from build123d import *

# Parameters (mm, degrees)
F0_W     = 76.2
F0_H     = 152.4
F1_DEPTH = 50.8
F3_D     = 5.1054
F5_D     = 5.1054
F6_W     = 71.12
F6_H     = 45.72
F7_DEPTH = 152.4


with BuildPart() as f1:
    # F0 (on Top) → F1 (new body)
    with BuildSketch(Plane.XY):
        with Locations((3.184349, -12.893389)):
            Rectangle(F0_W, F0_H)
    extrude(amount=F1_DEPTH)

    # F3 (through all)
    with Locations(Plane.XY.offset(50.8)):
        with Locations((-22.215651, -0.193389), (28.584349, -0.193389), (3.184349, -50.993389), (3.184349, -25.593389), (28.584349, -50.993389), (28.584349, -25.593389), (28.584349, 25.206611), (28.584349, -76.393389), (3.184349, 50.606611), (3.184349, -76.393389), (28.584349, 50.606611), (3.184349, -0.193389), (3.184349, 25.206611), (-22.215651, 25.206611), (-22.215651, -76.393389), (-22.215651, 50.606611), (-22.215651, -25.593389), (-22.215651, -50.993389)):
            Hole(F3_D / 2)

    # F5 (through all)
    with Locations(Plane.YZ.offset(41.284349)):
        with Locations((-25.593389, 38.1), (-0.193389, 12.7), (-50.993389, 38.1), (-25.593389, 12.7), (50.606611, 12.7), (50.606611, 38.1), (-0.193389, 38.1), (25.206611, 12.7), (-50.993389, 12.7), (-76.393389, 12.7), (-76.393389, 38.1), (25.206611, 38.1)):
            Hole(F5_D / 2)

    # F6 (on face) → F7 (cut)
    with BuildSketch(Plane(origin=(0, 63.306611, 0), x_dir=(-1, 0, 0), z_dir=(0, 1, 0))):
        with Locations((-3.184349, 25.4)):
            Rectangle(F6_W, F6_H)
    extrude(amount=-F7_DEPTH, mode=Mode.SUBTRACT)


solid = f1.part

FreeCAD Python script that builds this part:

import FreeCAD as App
import Part
import Sketcher

V = App.Vector
Q = App.Units.Quantity

doc = App.newDocument("Part")
body = doc.addObject("PartDesign::Body", "Body")

# Sketch on XY plane
sketch1 = body.newObject("Sketcher::SketchObject", "Sketch")
sketch1.AttachmentSupport = (doc.getObject("XY_Plane"), [""])
sketch1.MapMode = "FlatFace"
sketch1.addGeometry(Part.LineSegment(V(-35, 63, 0), V(-35, -89, 0)), False)
sketch1.addGeometry(Part.LineSegment(V(-35, -89, 0), V(41, -89, 0)), False)
sketch1.addGeometry(Part.LineSegment(V(41, -89, 0), V(41, 63, 0)), False)
sketch1.addGeometry(Part.LineSegment(V(41, 63, 0), V(-35, 63, 0)), False)
sketch1.addConstraint(Sketcher.Constraint("Coincident", 0, 2, 1, 1))
sketch1.addConstraint(Sketcher.Constraint("Coincident", 1, 2, 2, 1))
sketch1.addConstraint(Sketcher.Constraint("Coincident", 2, 2, 3, 1))
sketch1.addConstraint(Sketcher.Constraint("Coincident", 3, 2, 0, 1))
sketch1.addConstraint(Sketcher.Constraint("Vertical", 0))
sketch1.addConstraint(Sketcher.Constraint("Horizontal", 1))
sketch1.addConstraint(Sketcher.Constraint("Vertical", 2))
sketch1.addConstraint(Sketcher.Constraint("Horizontal", 3))
sketch1.addConstraint(Sketcher.Constraint("DistanceX", 1, 1, 1, 2, Q("3 in")))
sketch1.addConstraint(Sketcher.Constraint("DistanceY", 0, 2, 0, 1, Q("6 in")))
sketch1.addConstraint(Sketcher.Constraint("DistanceX", 0, 2, -1, 1, Q("34.915651 mm")))
sketch1.addConstraint(Sketcher.Constraint("DistanceY", 0, 2, -1, 1, Q("89.093389 mm")))
pad1 = body.newObject("PartDesign::Pad", "Pad")
pad1.Profile = sketch1
pad1.Length = Q("2 in")

# Sketch on XY plane
sketch2 = body.newObject("Sketcher::SketchObject", "Sketch001")
sketch2.AttachmentSupport = (doc.getObject("XY_Plane"), [""])
sketch2.MapMode = "FlatFace"
sketch2.AttachmentOffset = App.Placement(V(0, 0, 2 * 25.4), App.Rotation())
sketch2.addGeometry(Part.Circle(V(-22.2, -0.2, 0), V(0, 0, 1), 2.6), False)
sketch2.addGeometry(Part.Circle(V(28.6, -0.2, 0), V(0, 0, 1), 2.6), False)
sketch2.addGeometry(Part.Circle(V(3.2, -51, 0), V(0, 0, 1), 2.6), False)
sketch2.addGeometry(Part.Circle(V(3.2, -25.6, 0), V(0, 0, 1), 2.6), False)
sketch2.addGeometry(Part.Circle(V(28.6, -51, 0), V(0, 0, 1), 2.6), False)
sketch2.addGeometry(Part.Circle(V(28.6, -25.6, 0), V(0, 0, 1), 2.6), False)
sketch2.addGeometry(Part.Circle(V(28.6, 25.2, 0), V(0, 0, 1), 2.6), False)
sketch2.addGeometry(Part.Circle(V(28.6, -76.4, 0), V(0, 0, 1), 2.6), False)
sketch2.addGeometry(Part.Circle(V(3.2, 50.6, 0), V(0, 0, 1), 2.6), False)
sketch2.addGeometry(Part.Circle(V(3.2, -76.4, 0), V(0, 0, 1), 2.6), False)
sketch2.addGeometry(Part.Circle(V(28.6, 50.6, 0), V(0, 0, 1), 2.6), False)
sketch2.addGeometry(Part.Circle(V(3.2, -0.2, 0), V(0, 0, 1), 2.6), False)
sketch2.addGeometry(Part.Circle(V(3.2, 25.2, 0), V(0, 0, 1), 2.6), False)
sketch2.addGeometry(Part.Circle(V(-22.2, 25.2, 0), V(0, 0, 1), 2.6), False)
sketch2.addGeometry(Part.Circle(V(-22.2, -76.4, 0), V(0, 0, 1), 2.6), False)
sketch2.addGeometry(Part.Circle(V(-22.2, 50.6, 0), V(0, 0, 1), 2.6), False)
sketch2.addGeometry(Part.Circle(V(-22.2, -25.6, 0), V(0, 0, 1), 2.6), False)
sketch2.addGeometry(Part.Circle(V(-22.2, -51, 0), V(0, 0, 1), 2.6), False)
sketch2.addConstraint(Sketcher.Constraint("Equal", 0, 1))
sketch2.addConstraint(Sketcher.Constraint("Equal", 1, 2))
sketch2.addConstraint(Sketcher.Constraint("Equal", 2, 3))
sketch2.addConstraint(Sketcher.Constraint("Equal", 3, 4))
sketch2.addConstraint(Sketcher.Constraint("Equal", 4, 5))
sketch2.addConstraint(Sketcher.Constraint("Equal", 5, 6))
sketch2.addConstraint(Sketcher.Constraint("Equal", 6, 7))
sketch2.addConstraint(Sketcher.Constraint("Equal", 7, 8))
sketch2.addConstraint(Sketcher.Constraint("Equal", 8, 9))
sketch2.addConstraint(Sketcher.Constraint("Equal", 9, 10))
sketch2.addConstraint(Sketcher.Constraint("Equal", 10, 11))
sketch2.addConstraint(Sketcher.Constraint("Equal", 11, 12))
sketch2.addConstraint(Sketcher.Constraint("Equal", 12, 13))
sketch2.addConstraint(Sketcher.Constraint("Equal", 13, 14))
sketch2.addConstraint(Sketcher.Constraint("Equal", 14, 15))
sketch2.addConstraint(Sketcher.Constraint("Equal", 15, 16))
sketch2.addConstraint(Sketcher.Constraint("Equal", 16, 17))
sketch2.addConstraint(Sketcher.Constraint("Horizontal", 0, 3, 1, 3))
sketch2.addConstraint(Sketcher.Constraint("Horizontal", 2, 3, 4, 3))
sketch2.addConstraint(Sketcher.Constraint("Horizontal", 3, 3, 5, 3))
sketch2.addConstraint(Sketcher.Constraint("Horizontal", 7, 3, 9, 3))
sketch2.addConstraint(Sketcher.Constraint("Horizontal", 8, 3, 10, 3))
sketch2.addConstraint(Sketcher.Constraint("Horizontal", 1, 3, 11, 3))
sketch2.addConstraint(Sketcher.Constraint("Horizontal", 6, 3, 12, 3))
sketch2.addConstraint(Sketcher.Constraint("Horizontal", 12, 3, 13, 3))
sketch2.addConstraint(Sketcher.Constraint("Horizontal", 9, 3, 14, 3))
sketch2.addConstraint(Sketcher.Constraint("Horizontal", 10, 3, 15, 3))
sketch2.addConstraint(Sketcher.Constraint("Horizontal", 5, 3, 16, 3))
sketch2.addConstraint(Sketcher.Constraint("Horizontal", 4, 3, 17, 3))
sketch2.addConstraint(Sketcher.Constraint("Vertical", 2, 3, 3, 3))
sketch2.addConstraint(Sketcher.Constraint("Vertical", 1, 3, 4, 3))
sketch2.addConstraint(Sketcher.Constraint("Vertical", 4, 3, 5, 3))
sketch2.addConstraint(Sketcher.Constraint("Vertical", 5, 3, 6, 3))
sketch2.addConstraint(Sketcher.Constraint("Vertical", 6, 3, 7, 3))
sketch2.addConstraint(Sketcher.Constraint("Vertical", 3, 3, 8, 3))
sketch2.addConstraint(Sketcher.Constraint("Vertical", 8, 3, 9, 3))
sketch2.addConstraint(Sketcher.Constraint("Vertical", 7, 3, 10, 3))
sketch2.addConstraint(Sketcher.Constraint("Vertical", 9, 3, 11, 3))
sketch2.addConstraint(Sketcher.Constraint("Vertical", 11, 3, 12, 3))
sketch2.addConstraint(Sketcher.Constraint("Vertical", 0, 3, 13, 3))
sketch2.addConstraint(Sketcher.Constraint("Vertical", 13, 3, 14, 3))
sketch2.addConstraint(Sketcher.Constraint("Vertical", 14, 3, 15, 3))
sketch2.addConstraint(Sketcher.Constraint("Vertical", 15, 3, 16, 3))
sketch2.addConstraint(Sketcher.Constraint("Vertical", 16, 3, 17, 3))
sketch2.addConstraint(Sketcher.Constraint("Diameter", 0, Q("0.201 in")))
sketch2.addConstraint(Sketcher.Constraint("DistanceX", 0, 3, 1, 3, Q("2 in")))
sketch2.addConstraint(Sketcher.Constraint("DistanceX", 0, 3, 2, 3, Q("1 in")))
sketch2.addConstraint(Sketcher.Constraint("DistanceY", 2, 3, 0, 3, Q("2 in")))
sketch2.addConstraint(Sketcher.Constraint("DistanceY", 2, 3, 3, 3, Q("1 in")))
sketch2.addConstraint(Sketcher.Constraint("DistanceY", 1, 3, 6, 3, Q("1 in")))
sketch2.addConstraint(Sketcher.Constraint("DistanceY", 7, 3, 4, 3, Q("1 in")))
sketch2.addConstraint(Sketcher.Constraint("DistanceY", 6, 3, 8, 3, Q("1 in")))
sketch2.addConstraint(Sketcher.Constraint("DistanceX", 0, 3, -1, 1, Q("22.215651 mm")))
sketch2.addConstraint(Sketcher.Constraint("DistanceY", 0, 3, -1, 1, Q("0.193389 mm")))
doc.recompute()
hole = body.newObject("PartDesign::Hole", "Hole")
hole.Profile = sketch2
hole.ThreadType = "None"
hole.Diameter = Q("0.201 in")
hole.DepthType = "ThroughAll"

# Sketch on YZ plane
sketch3 = body.newObject("Sketcher::SketchObject", "Sketch002")
sketch3.AttachmentSupport = (doc.getObject("YZ_Plane"), [""])
sketch3.MapMode = "FlatFace"
sketch3.AttachmentOffset = App.Placement(V(0, 0, 41.284349), App.Rotation())
sketch3.addGeometry(Part.Circle(V(-25.6, 38.1, 0), V(0, 0, 1), 2.6), False)
sketch3.addGeometry(Part.Circle(V(-0.2, 12.7, 0), V(0, 0, 1), 2.6), False)
sketch3.addGeometry(Part.Circle(V(-51, 38.1, 0), V(0, 0, 1), 2.6), False)
sketch3.addGeometry(Part.Circle(V(-25.6, 12.7, 0), V(0, 0, 1), 2.6), False)
sketch3.addGeometry(Part.Circle(V(50.6, 12.7, 0), V(0, 0, 1), 2.6), False)
sketch3.addGeometry(Part.Circle(V(50.6, 38.1, 0), V(0, 0, 1), 2.6), False)
sketch3.addGeometry(Part.Circle(V(-0.2, 38.1, 0), V(0, 0, 1), 2.6), False)
sketch3.addGeometry(Part.Circle(V(25.2, 12.7, 0), V(0, 0, 1), 2.6), False)
sketch3.addGeometry(Part.Circle(V(-51, 12.7, 0), V(0, 0, 1), 2.6), False)
sketch3.addGeometry(Part.Circle(V(-76.4, 12.7, 0), V(0, 0, 1), 2.6), False)
sketch3.addGeometry(Part.Circle(V(-76.4, 38.1, 0), V(0, 0, 1), 2.6), False)
sketch3.addGeometry(Part.Circle(V(25.2, 38.1, 0), V(0, 0, 1), 2.6), False)
sketch3.addConstraint(Sketcher.Constraint("Equal", 0, 1))
sketch3.addConstraint(Sketcher.Constraint("Equal", 1, 2))
sketch3.addConstraint(Sketcher.Constraint("Equal", 2, 3))
sketch3.addConstraint(Sketcher.Constraint("Equal", 3, 4))
sketch3.addConstraint(Sketcher.Constraint("Equal", 4, 5))
sketch3.addConstraint(Sketcher.Constraint("Equal", 5, 6))
sketch3.addConstraint(Sketcher.Constraint("Equal", 6, 7))
sketch3.addConstraint(Sketcher.Constraint("Equal", 7, 8))
sketch3.addConstraint(Sketcher.Constraint("Equal", 8, 9))
sketch3.addConstraint(Sketcher.Constraint("Equal", 9, 10))
sketch3.addConstraint(Sketcher.Constraint("Equal", 10, 11))
sketch3.addConstraint(Sketcher.Constraint("Horizontal", 0, 3, 2, 3))
sketch3.addConstraint(Sketcher.Constraint("Horizontal", 1, 3, 3, 3))
sketch3.addConstraint(Sketcher.Constraint("Horizontal", 3, 3, 4, 3))
sketch3.addConstraint(Sketcher.Constraint("Horizontal", 2, 3, 5, 3))
sketch3.addConstraint(Sketcher.Constraint("Horizontal", 5, 3, 6, 3))
sketch3.addConstraint(Sketcher.Constraint("Horizontal", 4, 3, 7, 3))
sketch3.addConstraint(Sketcher.Constraint("Horizontal", 7, 3, 8, 3))
sketch3.addConstraint(Sketcher.Constraint("Horizontal", 8, 3, 9, 3))
sketch3.addConstraint(Sketcher.Constraint("Horizontal", 6, 3, 10, 3))
sketch3.addConstraint(Sketcher.Constraint("Horizontal", 10, 3, 11, 3))
sketch3.addConstraint(Sketcher.Constraint("Vertical", 0, 3, 3, 3))
sketch3.addConstraint(Sketcher.Constraint("Vertical", 4, 3, 5, 3))
sketch3.addConstraint(Sketcher.Constraint("Vertical", 1, 3, 6, 3))
sketch3.addConstraint(Sketcher.Constraint("Vertical", 2, 3, 8, 3))
sketch3.addConstraint(Sketcher.Constraint("Vertical", 9, 3, 10, 3))
sketch3.addConstraint(Sketcher.Constraint("Vertical", 7, 3, 11, 3))
sketch3.addConstraint(Sketcher.Constraint("Diameter", 0, Q("0.201 in")))
sketch3.addConstraint(Sketcher.Constraint("DistanceX", 0, 3, 1, 3, Q("1 in")))
sketch3.addConstraint(Sketcher.Constraint("DistanceY", 1, 3, 0, 3, Q("1 in")))
sketch3.addConstraint(Sketcher.Constraint("DistanceX", 2, 3, 0, 3, Q("1 in")))
sketch3.addConstraint(Sketcher.Constraint("DistanceX", 1, 3, 4, 3, Q("2 in")))
sketch3.addConstraint(Sketcher.Constraint("DistanceX", 1, 3, 7, 3, Q("1 in")))
sketch3.addConstraint(Sketcher.Constraint("DistanceX", 9, 3, 8, 3, Q("1 in")))
sketch3.addConstraint(Sketcher.Constraint("DistanceY", -1, 1, 0, 3, Q("1.5 in")))
sketch3.addConstraint(Sketcher.Constraint("DistanceX", 0, 3, -1, 1, Q("25.593389 mm")))
doc.recompute()
hole2 = body.newObject("PartDesign::Hole", "Hole001")
hole2.Profile = sketch3
hole2.ThreadType = "None"
hole2.Diameter = Q("0.201 in")
hole2.DepthType = "ThroughAll"

# Sketch on XZ plane
sketch4 = body.newObject("Sketcher::SketchObject", "Sketch003")
sketch4.AttachmentSupport = (doc.getObject("XZ_Plane"), [""])
sketch4.MapMode = "FlatFace"
sketch4.AttachmentOffset = App.Placement(V(0, 0, -63.306611), App.Rotation())
sketch4.addGeometry(Part.LineSegment(V(39, 48, 0), V(39, 3, 0)), False)
sketch4.addGeometry(Part.LineSegment(V(39, 3, 0), V(-32, 3, 0)), False)
sketch4.addGeometry(Part.LineSegment(V(-32, 3, 0), V(-32, 48, 0)), False)
sketch4.addGeometry(Part.LineSegment(V(-32, 48, 0), V(39, 48, 0)), False)
sketch4.addConstraint(Sketcher.Constraint("Coincident", 0, 2, 1, 1))
sketch4.addConstraint(Sketcher.Constraint("Coincident", 1, 2, 2, 1))
sketch4.addConstraint(Sketcher.Constraint("Coincident", 2, 2, 3, 1))
sketch4.addConstraint(Sketcher.Constraint("Coincident", 3, 2, 0, 1))
sketch4.addConstraint(Sketcher.Constraint("Vertical", 0))
sketch4.addConstraint(Sketcher.Constraint("Horizontal", 1))
sketch4.addConstraint(Sketcher.Constraint("Vertical", 2))
sketch4.addConstraint(Sketcher.Constraint("Horizontal", 3))
sketch4.addConstraint(Sketcher.Constraint("DistanceX", 1, 2, 1, 1, Q("2.8 in")))
sketch4.addConstraint(Sketcher.Constraint("DistanceY", 0, 2, 0, 1, Q("1.8 in")))
sketch4.addConstraint(Sketcher.Constraint("DistanceY", -1, 1, 0, 2, Q("0.1 in")))
sketch4.addConstraint(Sketcher.Constraint("DistanceX", -1, 1, 0, 2, Q("38.744349 mm")))
pocket1 = body.newObject("PartDesign::Pocket", "Pocket")
pocket1.Profile = sketch4
pocket1.Length = Q("6 in")
pocket1.Reversed = True

doc.recompute()
